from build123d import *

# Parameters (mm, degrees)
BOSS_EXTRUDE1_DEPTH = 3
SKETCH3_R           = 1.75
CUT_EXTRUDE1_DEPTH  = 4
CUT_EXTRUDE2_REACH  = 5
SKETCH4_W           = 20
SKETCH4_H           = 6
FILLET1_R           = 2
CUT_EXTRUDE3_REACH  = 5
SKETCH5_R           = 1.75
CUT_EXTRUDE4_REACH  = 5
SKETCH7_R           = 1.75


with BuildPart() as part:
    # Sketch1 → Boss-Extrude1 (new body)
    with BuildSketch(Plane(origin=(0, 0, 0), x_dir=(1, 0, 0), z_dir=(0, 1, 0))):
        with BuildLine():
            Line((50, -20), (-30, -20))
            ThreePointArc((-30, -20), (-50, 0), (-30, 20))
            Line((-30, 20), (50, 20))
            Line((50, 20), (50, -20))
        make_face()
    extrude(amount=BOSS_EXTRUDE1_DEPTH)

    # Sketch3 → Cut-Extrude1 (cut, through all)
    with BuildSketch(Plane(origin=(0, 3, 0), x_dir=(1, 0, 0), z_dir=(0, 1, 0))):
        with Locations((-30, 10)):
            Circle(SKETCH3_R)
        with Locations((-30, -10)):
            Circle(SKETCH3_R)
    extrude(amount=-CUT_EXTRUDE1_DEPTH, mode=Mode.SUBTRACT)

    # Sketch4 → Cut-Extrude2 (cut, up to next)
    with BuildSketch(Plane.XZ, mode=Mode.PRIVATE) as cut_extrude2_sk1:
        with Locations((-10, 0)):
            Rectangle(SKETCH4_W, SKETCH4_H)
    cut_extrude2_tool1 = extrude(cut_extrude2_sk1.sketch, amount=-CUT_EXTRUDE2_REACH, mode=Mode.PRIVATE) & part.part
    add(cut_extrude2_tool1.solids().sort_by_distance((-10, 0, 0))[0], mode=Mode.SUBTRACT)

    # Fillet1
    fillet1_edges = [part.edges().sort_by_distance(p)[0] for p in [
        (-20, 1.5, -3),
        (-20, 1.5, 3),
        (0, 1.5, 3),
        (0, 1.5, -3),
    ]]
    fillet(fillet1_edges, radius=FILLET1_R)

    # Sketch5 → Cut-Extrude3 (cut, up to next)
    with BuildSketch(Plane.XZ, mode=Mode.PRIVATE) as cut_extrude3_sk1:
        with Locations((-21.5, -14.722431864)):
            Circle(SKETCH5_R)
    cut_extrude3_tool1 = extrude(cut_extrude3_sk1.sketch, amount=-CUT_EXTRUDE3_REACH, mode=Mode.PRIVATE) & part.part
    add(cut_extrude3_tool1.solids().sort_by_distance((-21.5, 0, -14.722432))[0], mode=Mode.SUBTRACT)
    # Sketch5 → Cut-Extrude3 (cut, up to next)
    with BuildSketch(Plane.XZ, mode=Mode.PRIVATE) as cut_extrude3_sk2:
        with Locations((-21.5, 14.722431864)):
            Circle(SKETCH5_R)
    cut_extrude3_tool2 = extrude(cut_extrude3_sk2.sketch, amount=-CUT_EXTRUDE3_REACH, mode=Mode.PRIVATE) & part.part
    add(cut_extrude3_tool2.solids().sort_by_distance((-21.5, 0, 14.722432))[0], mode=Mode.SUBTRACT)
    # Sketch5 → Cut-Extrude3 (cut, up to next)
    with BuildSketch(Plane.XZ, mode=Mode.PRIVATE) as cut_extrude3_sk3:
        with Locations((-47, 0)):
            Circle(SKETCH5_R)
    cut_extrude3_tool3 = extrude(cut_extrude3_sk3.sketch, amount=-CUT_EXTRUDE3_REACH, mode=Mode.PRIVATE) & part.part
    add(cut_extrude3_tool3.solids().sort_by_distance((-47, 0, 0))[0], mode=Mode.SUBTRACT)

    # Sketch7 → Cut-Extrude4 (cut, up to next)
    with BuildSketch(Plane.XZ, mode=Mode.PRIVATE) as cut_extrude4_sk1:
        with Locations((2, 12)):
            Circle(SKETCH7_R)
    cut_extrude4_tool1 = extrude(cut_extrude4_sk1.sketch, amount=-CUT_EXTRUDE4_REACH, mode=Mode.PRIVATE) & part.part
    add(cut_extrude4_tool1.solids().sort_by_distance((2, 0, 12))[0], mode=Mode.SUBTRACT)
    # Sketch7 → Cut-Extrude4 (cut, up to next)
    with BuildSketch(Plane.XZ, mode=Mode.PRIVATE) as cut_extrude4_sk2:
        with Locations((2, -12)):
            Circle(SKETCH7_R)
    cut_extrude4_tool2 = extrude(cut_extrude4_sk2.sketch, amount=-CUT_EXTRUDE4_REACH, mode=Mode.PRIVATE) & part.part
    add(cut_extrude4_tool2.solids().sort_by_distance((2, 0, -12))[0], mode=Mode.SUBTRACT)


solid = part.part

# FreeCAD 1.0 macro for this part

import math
import FreeCAD as App
import Part
import Sketcher


def edges_at(feature, points):
    """Names of the edges that pass closest to the given points."""
    edges = feature.Shape.Edges
    near = lambda p: min(range(len(edges)), key=lambda i: edges[i].distToShape(Part.Vertex(*p))[0])
    return sorted({f"Edge{near(p) + 1}" for p in points})


def add_polygon(sketch, points):
    """Adds a closed chain of lines whose ends are joined by coincident constraints."""
    first, n = sketch.GeometryCount, len(points)
    for a, b in zip(points, points[1:] + points[:1]):
        sketch.addGeometry(Part.LineSegment(App.Vector(*a, 0), App.Vector(*b, 0)), False)
    for i in range(n):
        sketch.addConstraint(Sketcher.Constraint("Coincident", first + i, 2, first + (i + 1) % n, 1))

doc = App.newDocument("Part")
body = doc.addObject("PartDesign::Body", "Body")

# Sketch on XZ plane
sketch1 = body.newObject("Sketcher::SketchObject", "Sketch")
sketch1.AttachmentSupport = (doc.getObject("XZ_Plane"), [""])
sketch1.MapMode = "FlatFace"
sketch1.addGeometry([
    Part.LineSegment(App.Vector(-30, 20, 0), App.Vector(50, 20, 0)),
    Part.LineSegment(App.Vector(50, 20, 0), App.Vector(50, -20, 0)),
    Part.LineSegment(App.Vector(50, -20, 0), App.Vector(-30, -20, 0)),
    Part.ArcOfCircle(Part.Circle(App.Vector(-30, 0, 0), App.Vector(0, 0, 1), 20), math.radians(90), math.radians(270)),
], False)
sketch1.addConstraint([
    Sketcher.Constraint("Coincident", 0, 2, 1, 1),
    Sketcher.Constraint("Coincident", 1, 2, 2, 1),
    Sketcher.Constraint("Tangent", 2, 2, 3, 2),
    Sketcher.Constraint("Tangent", 3, 1, 0, 1),
    Sketcher.Constraint("Horizontal", 0),
    Sketcher.Constraint("Vertical", 1),
    Sketcher.Constraint("Horizontal", 2),
    Sketcher.Constraint("PointOnObject", 3, 3, -1),
    Sketcher.Constraint("Radius", 3, 20.0),
    Sketcher.Constraint("DistanceX", 0, 1, 0, 2, 80.0),
    Sketcher.Constraint("DistanceX", 3, 3, -1, 1, 30.0),
])
pad1 = body.newObject("PartDesign::Pad", "Pad")
pad1.Profile = sketch1
pad1.Length = 3
pad1.Reversed = True

# Sketch on XZ plane
sketch2 = body.newObject("Sketcher::SketchObject", "Sketch001")
sketch2.AttachmentSupport = (doc.getObject("XZ_Plane"), [""])
sketch2.MapMode = "FlatFace"
sketch2.AttachmentOffset = App.Placement(App.Vector(0, 0, -3), App.Rotation())
sketch2.addGeometry([
    Part.Circle(App.Vector(-30, -10, 0), App.Vector(0, 0, 1), 1.8),
    Part.Circle(App.Vector(-30, 10, 0), App.Vector(0, 0, 1), 1.8),
], False)
sketch2.addConstraint([
    Sketcher.Constraint("Equal", 0, 1),
    Sketcher.Constraint("Symmetric", 0, 3, 1, 3, -1),
    Sketcher.Constraint("Diameter", 0, 3.5),
    Sketcher.Constraint("DistanceX", 0, 3, -1, 1, 30.0),
    Sketcher.Constraint("DistanceY", 0, 3, -1, 1, 10.0),
])
pocket1 = body.newObject("PartDesign::Pocket", "Pocket")
pocket1.Profile = sketch2
pocket1.Type = "ThroughAll"
pocket1.Reversed = True

# Sketch on XZ plane
sketch3 = body.newObject("Sketcher::SketchObject", "Sketch002")
sketch3.AttachmentSupport = (doc.getObject("XZ_Plane"), [""])
sketch3.MapMode = "FlatFace"
add_polygon(sketch3, [(-20, 3), (-20, -3), (0, -3), (0, 3)])  # lines 0-3
sketch3.addConstraint([
    Sketcher.Constraint("Vertical", 0),
    Sketcher.Constraint("Horizontal", 1),
    Sketcher.Constraint("Vertical", 2),
    Sketcher.Constraint("Horizontal", 3),
    Sketcher.Constraint("Symmetric", 1, 2, 2, 2, -1, 1),
    Sketcher.Constraint("DistanceX", 1, 1, 1, 2, 20.0),
    Sketcher.Constraint("DistanceY", 0, 2, 0, 1, 6.0),
])
pocket2 = body.newObject("PartDesign::Pocket", "Pocket001")
pocket2.Profile = sketch3
pocket2.Type = "UpToFirst"
doc.recompute()

fillet = body.newObject("PartDesign::Fillet", "Fillet")
fillet.Base = (pocket2, edges_at(pocket2, [
    (-20, 1.5, -3),
    (-20, 1.5, 3),
    (0, 1.5, 3),
    (0, 1.5, -3),
]))
fillet.Radius = 2

# Sketch on XZ plane
sketch4 = body.newObject("Sketcher::SketchObject", "Sketch003")
sketch4.AttachmentSupport = (doc.getObject("XZ_Plane"), [""])
sketch4.MapMode = "FlatFace"
sketch4.addGeometry(Part.Circle(App.Vector(-21.5, -14.7, 0), App.Vector(0, 0, 1), 1.8), False)
sketch4.addConstraint([
    Sketcher.Constraint("Diameter", 0, 3.5),
    Sketcher.Constraint("DistanceX", 0, 3, -1, 1, 21.5),
    Sketcher.Constraint("DistanceY", 0, 3, -1, 1, 14.722432),
])
pocket3 = body.newObject("PartDesign::Pocket", "Pocket002")
pocket3.Profile = sketch4
pocket3.Type = "UpToFirst"

# Sketch on XZ plane
sketch5 = body.newObject("Sketcher::SketchObject", "Sketch004")
sketch5.AttachmentSupport = (doc.getObject("XZ_Plane"), [""])
sketch5.MapMode = "FlatFace"
sketch5.addGeometry(Part.Circle(App.Vector(-21.5, 14.7, 0), App.Vector(0, 0, 1), 1.8), False)
sketch5.addConstraint([
    Sketcher.Constraint("Diameter", 0, 3.5),
    Sketcher.Constraint("DistanceX", 0, 3, -1, 1, 21.5),
    Sketcher.Constraint("DistanceY", -1, 1, 0, 3, 14.722432),
])
pocket4 = body.newObject("PartDesign::Pocket", "Pocket003")
pocket4.Profile = sketch5
pocket4.Type = "UpToFirst"

# Sketch on XZ plane
sketch6 = body.newObject("Sketcher::SketchObject", "Sketch005")
sketch6.AttachmentSupport = (doc.getObject("XZ_Plane"), [""])
sketch6.MapMode = "FlatFace"
sketch6.addGeometry(Part.Circle(App.Vector(-47, 0, 0), App.Vector(0, 0, 1), 1.8), False)
sketch6.addConstraint([
    Sketcher.Constraint("PointOnObject", 0, 3, -1),
    Sketcher.Constraint("Diameter", 0, 3.5),
    Sketcher.Constraint("DistanceX", 0, 3, -1, 1, 47.0),
])
pocket5 = body.newObject("PartDesign::Pocket", "Pocket004")
pocket5.Profile = sketch6
pocket5.Type = "UpToFirst"

# Sketch on XZ plane
sketch7 = body.newObject("Sketcher::SketchObject", "Sketch006")
sketch7.AttachmentSupport = (doc.getObject("XZ_Plane"), [""])
sketch7.MapMode = "FlatFace"
sketch7.addGeometry(Part.Circle(App.Vector(2, 12, 0), App.Vector(0, 0, 1), 1.8), False)
sketch7.addConstraint([
    Sketcher.Constraint("Diameter", 0, 3.5),
    Sketcher.Constraint("DistanceX", -1, 1, 0, 3, 2.0),
    Sketcher.Constraint("DistanceY", -1, 1, 0, 3, 12.0),
])
pocket6 = body.newObject("PartDesign::Pocket", "Pocket005")
pocket6.Profile = sketch7
pocket6.Type = "UpToFirst"

# Sketch on XZ plane
sketch8 = body.newObject("Sketcher::SketchObject", "Sketch007")
sketch8.AttachmentSupport = (doc.getObject("XZ_Plane"), [""])
sketch8.MapMode = "FlatFace"
sketch8.addGeometry(Part.Circle(App.Vector(2, -12, 0), App.Vector(0, 0, 1), 1.8), False)
sketch8.addConstraint([
    Sketcher.Constraint("Diameter", 0, 3.5),
    Sketcher.Constraint("DistanceX", -1, 1, 0, 3, 2.0),
    Sketcher.Constraint("DistanceY", 0, 3, -1, 1, 12.0),
])
pocket7 = body.newObject("PartDesign::Pocket", "Pocket006")
pocket7.Profile = sketch8
pocket7.Type = "UpToFirst"

doc.recompute()
